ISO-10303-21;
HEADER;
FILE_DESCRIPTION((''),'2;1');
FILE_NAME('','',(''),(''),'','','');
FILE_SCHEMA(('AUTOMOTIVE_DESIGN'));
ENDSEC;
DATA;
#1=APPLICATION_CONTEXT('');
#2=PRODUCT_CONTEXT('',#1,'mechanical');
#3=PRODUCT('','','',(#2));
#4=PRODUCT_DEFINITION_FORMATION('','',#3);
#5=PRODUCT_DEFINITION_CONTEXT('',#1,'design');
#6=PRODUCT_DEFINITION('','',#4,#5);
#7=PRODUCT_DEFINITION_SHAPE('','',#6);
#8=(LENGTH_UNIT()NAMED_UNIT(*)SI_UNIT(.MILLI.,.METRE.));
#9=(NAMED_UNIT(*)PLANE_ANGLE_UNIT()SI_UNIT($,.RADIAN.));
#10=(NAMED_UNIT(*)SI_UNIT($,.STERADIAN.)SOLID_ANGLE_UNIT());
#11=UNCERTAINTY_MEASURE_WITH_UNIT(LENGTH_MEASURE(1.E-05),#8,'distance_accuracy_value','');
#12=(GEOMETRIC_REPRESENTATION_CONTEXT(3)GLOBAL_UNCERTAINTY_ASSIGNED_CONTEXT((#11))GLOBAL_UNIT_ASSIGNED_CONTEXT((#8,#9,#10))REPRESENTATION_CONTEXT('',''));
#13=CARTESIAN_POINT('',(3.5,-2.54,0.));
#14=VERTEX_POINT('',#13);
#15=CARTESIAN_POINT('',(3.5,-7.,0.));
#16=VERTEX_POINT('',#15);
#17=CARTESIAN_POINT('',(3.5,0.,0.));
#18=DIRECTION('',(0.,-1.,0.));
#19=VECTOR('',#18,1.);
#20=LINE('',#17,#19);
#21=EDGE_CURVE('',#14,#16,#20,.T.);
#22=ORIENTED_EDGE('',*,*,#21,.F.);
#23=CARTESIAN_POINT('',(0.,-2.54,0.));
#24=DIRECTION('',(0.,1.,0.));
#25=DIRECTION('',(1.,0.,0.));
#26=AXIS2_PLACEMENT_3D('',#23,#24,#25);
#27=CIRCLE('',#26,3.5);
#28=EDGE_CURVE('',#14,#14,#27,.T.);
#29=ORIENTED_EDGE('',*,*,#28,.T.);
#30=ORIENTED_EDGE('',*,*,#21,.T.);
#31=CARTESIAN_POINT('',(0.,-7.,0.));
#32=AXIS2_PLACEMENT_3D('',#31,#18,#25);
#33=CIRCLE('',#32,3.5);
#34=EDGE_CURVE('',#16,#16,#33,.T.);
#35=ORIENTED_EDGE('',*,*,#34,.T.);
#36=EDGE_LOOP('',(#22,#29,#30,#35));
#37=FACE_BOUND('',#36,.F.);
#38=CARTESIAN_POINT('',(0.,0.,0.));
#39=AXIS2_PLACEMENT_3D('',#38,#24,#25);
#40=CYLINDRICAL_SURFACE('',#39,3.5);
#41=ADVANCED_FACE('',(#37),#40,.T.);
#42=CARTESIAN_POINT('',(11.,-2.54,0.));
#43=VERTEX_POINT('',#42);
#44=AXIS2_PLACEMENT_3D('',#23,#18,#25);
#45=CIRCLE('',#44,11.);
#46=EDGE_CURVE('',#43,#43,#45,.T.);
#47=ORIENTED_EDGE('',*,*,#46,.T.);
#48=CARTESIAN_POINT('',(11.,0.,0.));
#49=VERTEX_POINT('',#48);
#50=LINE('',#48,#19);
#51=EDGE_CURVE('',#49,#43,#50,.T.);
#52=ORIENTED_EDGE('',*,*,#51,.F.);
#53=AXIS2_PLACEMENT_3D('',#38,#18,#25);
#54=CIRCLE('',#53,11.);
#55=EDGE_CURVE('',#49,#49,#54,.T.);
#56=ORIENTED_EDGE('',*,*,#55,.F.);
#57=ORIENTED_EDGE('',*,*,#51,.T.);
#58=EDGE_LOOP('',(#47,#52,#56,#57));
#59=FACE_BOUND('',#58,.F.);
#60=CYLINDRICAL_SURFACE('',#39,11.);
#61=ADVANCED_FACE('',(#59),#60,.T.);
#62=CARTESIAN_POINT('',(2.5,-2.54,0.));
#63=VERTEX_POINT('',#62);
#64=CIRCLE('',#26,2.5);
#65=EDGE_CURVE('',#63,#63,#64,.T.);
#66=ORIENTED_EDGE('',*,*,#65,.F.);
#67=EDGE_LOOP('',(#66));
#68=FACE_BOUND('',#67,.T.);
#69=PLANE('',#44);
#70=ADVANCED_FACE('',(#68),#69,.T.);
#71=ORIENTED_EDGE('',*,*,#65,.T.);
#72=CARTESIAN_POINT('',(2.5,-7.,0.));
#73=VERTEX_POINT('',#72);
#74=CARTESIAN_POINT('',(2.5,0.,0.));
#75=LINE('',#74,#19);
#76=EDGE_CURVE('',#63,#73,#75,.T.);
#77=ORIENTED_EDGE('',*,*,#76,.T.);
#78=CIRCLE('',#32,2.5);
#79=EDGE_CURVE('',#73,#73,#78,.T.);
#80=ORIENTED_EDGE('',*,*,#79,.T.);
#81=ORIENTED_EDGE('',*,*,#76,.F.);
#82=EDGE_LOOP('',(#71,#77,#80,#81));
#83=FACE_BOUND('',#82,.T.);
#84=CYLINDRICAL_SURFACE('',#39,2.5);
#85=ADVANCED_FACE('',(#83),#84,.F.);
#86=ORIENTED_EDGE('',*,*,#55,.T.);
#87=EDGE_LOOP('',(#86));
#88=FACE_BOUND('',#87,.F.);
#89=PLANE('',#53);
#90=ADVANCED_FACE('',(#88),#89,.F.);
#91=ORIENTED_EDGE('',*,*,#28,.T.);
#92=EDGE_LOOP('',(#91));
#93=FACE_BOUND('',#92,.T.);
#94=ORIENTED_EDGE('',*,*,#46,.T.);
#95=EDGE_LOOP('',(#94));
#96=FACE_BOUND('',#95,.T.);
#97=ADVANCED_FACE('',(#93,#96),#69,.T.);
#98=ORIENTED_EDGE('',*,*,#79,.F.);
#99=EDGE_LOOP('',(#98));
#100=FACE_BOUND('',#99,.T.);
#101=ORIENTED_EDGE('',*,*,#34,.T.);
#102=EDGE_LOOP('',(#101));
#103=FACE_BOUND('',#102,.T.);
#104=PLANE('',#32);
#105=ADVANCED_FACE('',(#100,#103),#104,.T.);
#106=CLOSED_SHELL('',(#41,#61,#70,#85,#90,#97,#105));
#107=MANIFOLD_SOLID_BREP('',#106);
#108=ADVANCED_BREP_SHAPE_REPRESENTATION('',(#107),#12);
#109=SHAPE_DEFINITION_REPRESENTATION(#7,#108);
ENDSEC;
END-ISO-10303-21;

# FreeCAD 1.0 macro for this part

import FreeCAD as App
import Part
import Sketcher

V = App.Vector
Q = App.Units.Quantity

doc = App.newDocument("Part")
body = doc.addObject("PartDesign::Body", "Body")

# Sketch on XZ plane
sketch1 = body.newObject("Sketcher::SketchObject", "Sketch")
sketch1.AttachmentSupport = (doc.getObject("XZ_Plane"), [""])
sketch1.MapMode = "FlatFace"
sketch1.addGeometry(Part.Circle(V(0, 0, 0), V(0, 0, 1), 3.5), False)
sketch1.addGeometry(Part.Circle(V(0, 0, 0), V(0, 0, 1), 2.5), False)
sketch1.addConstraint(Sketcher.Constraint("Coincident", 0, 3, -1, 1))
sketch1.addConstraint(Sketcher.Constraint("Coincident", 1, 3, -1, 1))
sketch1.addConstraint(Sketcher.Constraint("Diameter", 0, Q("7 mm")))
sketch1.addConstraint(Sketcher.Constraint("Diameter", 1, Q("5 mm")))
pad1 = body.newObject("PartDesign::Pad", "Pad")
pad1.Profile = sketch1
pad1.Length = 7

# Sketch on XZ plane
sketch2 = body.newObject("Sketcher::SketchObject", "Sketch001")
sketch2.AttachmentSupport = (doc.getObject("XZ_Plane"), [""])
sketch2.MapMode = "FlatFace"
sketch2.addGeometry(Part.Circle(V(0, 0, 0), V(0, 0, 1), 11), False)
sketch2.addConstraint(Sketcher.Constraint("Coincident", 0, 3, -1, 1))
sketch2.addConstraint(Sketcher.Constraint("Diameter", 0, Q("22 mm")))
pad2 = body.newObject("PartDesign::Pad", "Pad001")
pad2.Profile = sketch2
pad2.Length = 2.54

doc.recompute()
